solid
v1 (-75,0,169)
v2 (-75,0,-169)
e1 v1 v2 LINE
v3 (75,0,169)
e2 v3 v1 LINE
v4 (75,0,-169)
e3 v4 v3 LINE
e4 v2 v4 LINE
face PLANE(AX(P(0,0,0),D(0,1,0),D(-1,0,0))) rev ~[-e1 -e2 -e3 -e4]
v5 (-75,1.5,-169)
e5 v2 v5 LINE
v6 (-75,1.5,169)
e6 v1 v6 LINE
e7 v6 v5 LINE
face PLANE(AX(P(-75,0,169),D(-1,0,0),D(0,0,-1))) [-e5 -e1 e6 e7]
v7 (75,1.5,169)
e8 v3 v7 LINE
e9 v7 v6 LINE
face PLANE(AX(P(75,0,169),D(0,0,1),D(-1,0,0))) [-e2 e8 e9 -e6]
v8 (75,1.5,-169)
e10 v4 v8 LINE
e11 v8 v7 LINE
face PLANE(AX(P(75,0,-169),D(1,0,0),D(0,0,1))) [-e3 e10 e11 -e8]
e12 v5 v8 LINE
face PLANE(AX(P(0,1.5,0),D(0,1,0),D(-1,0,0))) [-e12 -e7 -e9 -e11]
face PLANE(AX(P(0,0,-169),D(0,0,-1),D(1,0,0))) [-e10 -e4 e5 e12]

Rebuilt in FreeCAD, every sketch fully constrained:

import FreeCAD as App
import Part
import Sketcher
from FreeCAD import Vector


def add_polygon(sketch, points):
    """Adds a closed chain of lines whose ends are joined by coincident constraints."""
    first, n = sketch.GeometryCount, len(points)
    for a, b in zip(points, points[1:] + points[:1]):
        sketch.addGeometry(Part.LineSegment(App.Vector(*a, 0), App.Vector(*b, 0)), False)
    for i in range(n):
        sketch.addConstraint(Sketcher.Constraint("Coincident", first + i, 2, first + (i + 1) % n, 1))

doc = App.newDocument("Part")
body = doc.addObject("PartDesign::Body", "Body")

# Sketch on XZ plane
sketch1 = body.newObject("Sketcher::SketchObject", "Sketch")
sketch1.AttachmentSupport = (doc.getObject("XZ_Plane"), [""])
sketch1.MapMode = "FlatFace"
add_polygon(sketch1, [(75, 169), (75, -169), (-75, -169), (-75, 169)])  # lines 0-3
sketch1.addConstraint([
    Sketcher.Constraint("Vertical", 0),
    Sketcher.Constraint("Horizontal", 1),
    Sketcher.Constraint("Vertical", 2),
    Sketcher.Constraint("Horizontal", 3),
    Sketcher.Constraint("Symmetric", 0, 2, 2, 2, -1, 1),
    Sketcher.Constraint("DistanceX", 1, 2, 1, 1, 150.0),
    Sketcher.Constraint("DistanceY", 0, 2, 0, 1, 338.0),
])
pad1 = body.newObject("PartDesign::Pad", "Pad")
pad1.Profile = sketch1
pad1.Length = 1.5
pad1.Reversed = True

doc.recompute()
